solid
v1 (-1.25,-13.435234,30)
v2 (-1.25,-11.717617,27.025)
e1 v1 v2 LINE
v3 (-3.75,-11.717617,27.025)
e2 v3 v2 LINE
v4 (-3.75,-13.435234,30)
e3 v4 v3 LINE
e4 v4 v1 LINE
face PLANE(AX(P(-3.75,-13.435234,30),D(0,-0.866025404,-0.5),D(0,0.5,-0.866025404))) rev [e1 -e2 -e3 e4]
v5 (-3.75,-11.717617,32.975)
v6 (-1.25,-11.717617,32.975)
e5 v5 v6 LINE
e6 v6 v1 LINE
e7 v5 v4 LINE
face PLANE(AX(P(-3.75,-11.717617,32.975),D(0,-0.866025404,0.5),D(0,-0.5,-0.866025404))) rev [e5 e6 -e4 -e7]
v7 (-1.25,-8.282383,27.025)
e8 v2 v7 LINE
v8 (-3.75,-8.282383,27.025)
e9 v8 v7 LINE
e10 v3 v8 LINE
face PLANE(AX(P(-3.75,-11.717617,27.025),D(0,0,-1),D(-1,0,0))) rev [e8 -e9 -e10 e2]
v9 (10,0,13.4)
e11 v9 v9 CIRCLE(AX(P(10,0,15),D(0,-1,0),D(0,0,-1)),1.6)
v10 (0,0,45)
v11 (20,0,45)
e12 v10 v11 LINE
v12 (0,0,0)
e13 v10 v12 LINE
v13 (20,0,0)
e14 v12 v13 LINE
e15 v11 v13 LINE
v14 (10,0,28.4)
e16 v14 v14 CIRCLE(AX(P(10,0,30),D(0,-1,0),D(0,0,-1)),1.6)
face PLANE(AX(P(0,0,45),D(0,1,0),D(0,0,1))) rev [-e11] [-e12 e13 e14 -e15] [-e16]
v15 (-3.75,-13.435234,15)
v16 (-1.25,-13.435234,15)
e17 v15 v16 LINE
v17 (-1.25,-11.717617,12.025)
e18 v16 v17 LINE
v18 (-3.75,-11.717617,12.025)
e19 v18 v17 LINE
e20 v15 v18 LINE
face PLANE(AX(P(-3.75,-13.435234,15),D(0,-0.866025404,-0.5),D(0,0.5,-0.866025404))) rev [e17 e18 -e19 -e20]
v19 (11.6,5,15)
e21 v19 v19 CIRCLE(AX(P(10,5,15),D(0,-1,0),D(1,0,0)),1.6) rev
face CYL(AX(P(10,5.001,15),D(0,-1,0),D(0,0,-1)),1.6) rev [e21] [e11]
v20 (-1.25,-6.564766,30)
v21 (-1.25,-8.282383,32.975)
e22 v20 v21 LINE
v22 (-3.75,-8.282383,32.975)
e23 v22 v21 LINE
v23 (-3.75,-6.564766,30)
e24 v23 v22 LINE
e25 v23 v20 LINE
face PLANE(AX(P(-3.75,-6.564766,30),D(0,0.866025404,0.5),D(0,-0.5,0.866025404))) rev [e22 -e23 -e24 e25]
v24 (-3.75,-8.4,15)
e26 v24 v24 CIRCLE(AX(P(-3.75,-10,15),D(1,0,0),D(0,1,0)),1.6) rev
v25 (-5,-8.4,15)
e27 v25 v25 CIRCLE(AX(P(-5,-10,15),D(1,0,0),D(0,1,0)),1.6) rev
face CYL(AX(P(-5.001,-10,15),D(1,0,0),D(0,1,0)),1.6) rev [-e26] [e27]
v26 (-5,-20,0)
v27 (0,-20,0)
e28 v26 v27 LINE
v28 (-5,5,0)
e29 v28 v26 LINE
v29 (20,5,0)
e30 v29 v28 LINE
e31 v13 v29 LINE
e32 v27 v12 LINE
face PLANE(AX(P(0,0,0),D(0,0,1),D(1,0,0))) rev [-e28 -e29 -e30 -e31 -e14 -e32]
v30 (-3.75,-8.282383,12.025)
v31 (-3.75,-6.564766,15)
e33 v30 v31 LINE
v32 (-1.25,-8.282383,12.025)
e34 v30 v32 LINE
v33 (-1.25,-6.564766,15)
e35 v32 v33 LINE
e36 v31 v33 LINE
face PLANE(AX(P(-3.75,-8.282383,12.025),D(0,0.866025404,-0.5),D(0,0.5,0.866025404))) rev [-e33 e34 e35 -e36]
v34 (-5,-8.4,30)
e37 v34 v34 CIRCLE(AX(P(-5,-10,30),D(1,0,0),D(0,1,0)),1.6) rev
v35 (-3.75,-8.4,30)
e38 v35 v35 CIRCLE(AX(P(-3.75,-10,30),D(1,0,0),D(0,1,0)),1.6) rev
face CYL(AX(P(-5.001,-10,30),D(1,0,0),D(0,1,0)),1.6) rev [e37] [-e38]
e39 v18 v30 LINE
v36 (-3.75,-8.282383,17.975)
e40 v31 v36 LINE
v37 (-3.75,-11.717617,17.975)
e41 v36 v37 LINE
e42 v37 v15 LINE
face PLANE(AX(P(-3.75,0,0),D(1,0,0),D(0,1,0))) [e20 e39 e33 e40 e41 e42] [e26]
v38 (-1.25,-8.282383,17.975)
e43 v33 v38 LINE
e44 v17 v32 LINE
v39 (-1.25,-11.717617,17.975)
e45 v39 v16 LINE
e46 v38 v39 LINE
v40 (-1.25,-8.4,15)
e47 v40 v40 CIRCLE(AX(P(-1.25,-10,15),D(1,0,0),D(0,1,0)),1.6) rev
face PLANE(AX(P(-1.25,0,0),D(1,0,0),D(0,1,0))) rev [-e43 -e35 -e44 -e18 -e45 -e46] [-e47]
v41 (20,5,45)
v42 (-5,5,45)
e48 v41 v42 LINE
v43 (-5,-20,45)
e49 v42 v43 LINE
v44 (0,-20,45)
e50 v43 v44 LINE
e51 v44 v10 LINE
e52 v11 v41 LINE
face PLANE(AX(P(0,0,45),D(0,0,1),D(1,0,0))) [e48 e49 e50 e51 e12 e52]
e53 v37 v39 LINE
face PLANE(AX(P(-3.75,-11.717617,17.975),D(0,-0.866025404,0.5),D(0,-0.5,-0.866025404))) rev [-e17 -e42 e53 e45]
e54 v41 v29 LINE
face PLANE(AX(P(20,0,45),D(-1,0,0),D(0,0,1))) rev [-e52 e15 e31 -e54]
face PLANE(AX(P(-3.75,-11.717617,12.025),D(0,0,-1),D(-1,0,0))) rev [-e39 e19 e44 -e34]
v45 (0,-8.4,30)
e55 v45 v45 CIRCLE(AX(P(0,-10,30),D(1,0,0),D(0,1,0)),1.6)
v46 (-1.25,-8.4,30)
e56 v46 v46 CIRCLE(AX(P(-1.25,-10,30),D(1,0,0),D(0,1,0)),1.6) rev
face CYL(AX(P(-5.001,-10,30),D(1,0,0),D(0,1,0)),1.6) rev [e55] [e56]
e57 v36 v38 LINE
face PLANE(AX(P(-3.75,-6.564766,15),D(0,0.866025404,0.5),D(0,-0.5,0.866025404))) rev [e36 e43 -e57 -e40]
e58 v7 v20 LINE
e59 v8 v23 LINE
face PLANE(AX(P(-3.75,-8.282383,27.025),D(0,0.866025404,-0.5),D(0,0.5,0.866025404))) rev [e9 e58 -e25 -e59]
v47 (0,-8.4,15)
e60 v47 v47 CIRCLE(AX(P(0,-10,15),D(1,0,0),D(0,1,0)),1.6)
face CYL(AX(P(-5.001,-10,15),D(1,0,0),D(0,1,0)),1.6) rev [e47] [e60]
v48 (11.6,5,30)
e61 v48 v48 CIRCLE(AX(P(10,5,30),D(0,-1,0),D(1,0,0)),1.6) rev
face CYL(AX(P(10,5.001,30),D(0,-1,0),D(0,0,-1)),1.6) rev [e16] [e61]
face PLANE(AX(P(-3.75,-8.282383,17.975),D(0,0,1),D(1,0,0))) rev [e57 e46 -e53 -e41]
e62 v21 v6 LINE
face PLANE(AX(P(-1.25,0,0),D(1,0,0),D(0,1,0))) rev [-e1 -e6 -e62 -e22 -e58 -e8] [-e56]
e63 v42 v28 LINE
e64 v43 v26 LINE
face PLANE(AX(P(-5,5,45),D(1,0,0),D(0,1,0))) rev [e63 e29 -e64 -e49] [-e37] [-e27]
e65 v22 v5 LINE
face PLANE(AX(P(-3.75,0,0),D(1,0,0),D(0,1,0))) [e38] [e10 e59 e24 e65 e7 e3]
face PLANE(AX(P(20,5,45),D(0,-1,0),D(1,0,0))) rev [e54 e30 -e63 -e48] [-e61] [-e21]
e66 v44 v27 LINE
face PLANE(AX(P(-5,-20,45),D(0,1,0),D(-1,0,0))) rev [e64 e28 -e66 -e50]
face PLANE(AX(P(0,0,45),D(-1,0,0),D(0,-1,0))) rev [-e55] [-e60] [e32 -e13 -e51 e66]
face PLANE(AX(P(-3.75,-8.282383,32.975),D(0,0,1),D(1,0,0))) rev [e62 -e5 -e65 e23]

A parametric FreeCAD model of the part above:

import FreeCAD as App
import Part
import Sketcher

V = App.Vector
Q = App.Units.Quantity


def add_polygon(sketch, points):
    """Adds a closed chain of lines whose ends are joined by coincident constraints."""
    first, n = sketch.GeometryCount, len(points)
    for a, b in zip(points, points[1:] + points[:1]):
        sketch.addGeometry(Part.LineSegment(App.Vector(*a, 0), App.Vector(*b, 0)), False)
    for i in range(n):
        sketch.addConstraint(Sketcher.Constraint("Coincident", first + i, 2, first + (i + 1) % n, 1))

doc = App.newDocument("Part")
params = doc.addObject("Spreadsheet::Sheet", "Params")
for row, (alias, value) in enumerate([
    ("sketch1_width", "20 mm"),
    ("sketch1_width2", "25 mm"),
    ("pad1_length", "45 mm"),
    ("sketch2_diameter", "3.2 mm"),
    ("sketch3_diameter", "3.2 mm"),
    ("sketch4_diameter", "3.2 mm"),
    ("sketch5_diameter", "3.2 mm"),
    ("pocket5_length", "2.5 mm"),
], start=1):
    params.set(f"A{row}", alias)
    params.set(f"B{row}", "=" + value)
    params.setAlias(f"B{row}", alias)

body = doc.addObject("PartDesign::Body", "Body")

sketch1 = body.newObject("Sketcher::SketchObject", "Sketch")
sketch1.AttachmentSupport = (doc.getObject("XY_Plane"), [""])
sketch1.MapMode = "FlatFace"
add_polygon(sketch1, [(0, -20), (0, 0), (20, 0), (20, 5), (-5, 5), (-5, -20)])
sketch1.addConstraint(Sketcher.Constraint("Vertical", 0))
sketch1.addConstraint(Sketcher.Constraint("Horizontal", 1))
sketch1.addConstraint(Sketcher.Constraint("Vertical", 2))
sketch1.addConstraint(Sketcher.Constraint("Horizontal", 3))
sketch1.addConstraint(Sketcher.Constraint("Vertical", 4))
sketch1.addConstraint(Sketcher.Constraint("Horizontal", 5))
sketch1.addConstraint(Sketcher.Constraint("Coincident", 0, 2, -1, 1))
sketch1.addConstraint(Sketcher.Constraint("Equal", 1, 0))
sketch1.addConstraint(Sketcher.Constraint("Equal", 5, 2))
sketch1.addConstraint(Sketcher.Constraint("DistanceX", 1, 1, 1, 2, 20.0))
sketch1.addConstraint(Sketcher.Constraint("DistanceX", 3, 2, 3, 1, 25.0))
sketch1.setExpression("Constraints[15]", "Params.sketch1_width")
sketch1.setExpression("Constraints[16]", "Params.sketch1_width2")
pad1 = body.newObject("PartDesign::Pad", "Pad")
pad1.Profile = sketch1
pad1.setExpression("Length", "Params.pad1_length")

sketch2 = body.newObject("Sketcher::SketchObject", "Sketch001")
sketch2.AttachmentSupport = (doc.getObject("YZ_Plane"), [""])
sketch2.MapMode = "FlatFace"
sketch2.addGeometry(Part.Circle(V(-10, 30, 0), V(0, 0, 1), 1.6), False)
sketch2.addConstraint(Sketcher.Constraint("Diameter", 0, 3.2))
sketch2.addConstraint(Sketcher.Constraint("DistanceX", 0, 3, -1, 1, 10.0))
sketch2.addConstraint(Sketcher.Constraint("DistanceY", -1, 1, 0, 3, 30.0))
sketch2.setExpression("Constraints[0]", "Params.sketch2_diameter")
pocket1 = body.newObject("PartDesign::Pocket", "Pocket")
pocket1.Profile = sketch2
pocket1.Type = "UpToFirst"

sketch3 = body.newObject("Sketcher::SketchObject", "Sketch002")
sketch3.AttachmentSupport = (doc.getObject("YZ_Plane"), [""])
sketch3.MapMode = "FlatFace"
sketch3.addGeometry(Part.Circle(V(-10, 15, 0), V(0, 0, 1), 1.6), False)
sketch3.addConstraint(Sketcher.Constraint("Diameter", 0, 3.2))
sketch3.addConstraint(Sketcher.Constraint("DistanceX", 0, 3, -1, 1, 10.0))
sketch3.addConstraint(Sketcher.Constraint("DistanceY", -1, 1, 0, 3, 15.0))
sketch3.setExpression("Constraints[0]", "Params.sketch3_diameter")
pocket2 = body.newObject("PartDesign::Pocket", "Pocket001")
pocket2.Profile = sketch3
pocket2.Type = "UpToFirst"

sketch4 = body.newObject("Sketcher::SketchObject", "Sketch003")
sketch4.AttachmentSupport = (doc.getObject("XZ_Plane"), [""])
sketch4.MapMode = "FlatFace"
sketch4.addGeometry(Part.Circle(V(10, 30, 0), V(0, 0, 1), 1.6), False)
sketch4.addConstraint(Sketcher.Constraint("Diameter", 0, 3.2))
sketch4.addConstraint(Sketcher.Constraint("DistanceX", -1, 1, 0, 3, 10.0))
sketch4.addConstraint(Sketcher.Constraint("DistanceY", -1, 1, 0, 3, 30.0))
sketch4.setExpression("Constraints[0]", "Params.sketch4_diameter")
pocket3 = body.newObject("PartDesign::Pocket", "Pocket002")
pocket3.Profile = sketch4
pocket3.Type = "UpToFirst"

sketch5 = body.newObject("Sketcher::SketchObject", "Sketch004")
sketch5.AttachmentSupport = (doc.getObject("XZ_Plane"), [""])
sketch5.MapMode = "FlatFace"
sketch5.addGeometry(Part.Circle(V(10, 15, 0), V(0, 0, 1), 1.6), False)
sketch5.addConstraint(Sketcher.Constraint("Diameter", 0, 3.2))
sketch5.addConstraint(Sketcher.Constraint("DistanceX", -1, 1, 0, 3, 10.0))
sketch5.addConstraint(Sketcher.Constraint("DistanceY", -1, 1, 0, 3, 15.0))
sketch5.setExpression("Constraints[0]", "Params.sketch5_diameter")
pocket4 = body.newObject("PartDesign::Pocket", "Pocket003")
pocket4.Profile = sketch5
pocket4.Type = "UpToFirst"

sketch6 = body.newObject("Sketcher::SketchObject", "Sketch005")
sketch6.AttachmentSupport = (doc.getObject("YZ_Plane"), [""])
sketch6.MapMode = "FlatFace"
sketch6.AttachmentOffset = App.Placement(V(0, 0, -1.25), App.Rotation())
add_polygon(sketch6, [(-6.6, 30), (-8.3, 33), (-11.7, 33), (-13.4, 30), (-11.7, 27), (-8.3, 27)])
add_polygon(sketch6, [(-6.6, 15), (-8.3, 18), (-11.7, 18), (-13.4, 15), (-11.7, 12), (-8.3, 12)])
sketch6.addConstraint(Sketcher.Constraint("Horizontal", 1))
sketch6.addConstraint(Sketcher.Constraint("Horizontal", 4))
sketch6.addConstraint(Sketcher.Constraint("Horizontal", 7))
sketch6.addConstraint(Sketcher.Constraint("Horizontal", 10))
sketch6.addConstraint(Sketcher.Constraint("Parallel", 0, 3))
sketch6.addConstraint(Sketcher.Constraint("Parallel", 2, 5))
sketch6.addConstraint(Sketcher.Constraint("Parallel", 3, 6))
sketch6.addConstraint(Sketcher.Constraint("Parallel", 5, 8))
sketch6.addConstraint(Sketcher.Constraint("Parallel", 6, 9))
sketch6.addConstraint(Sketcher.Constraint("Parallel", 8, 11))
sketch6.addConstraint(Sketcher.Constraint("Horizontal", 2, 2, 5, 2))
sketch6.addConstraint(Sketcher.Constraint("Horizontal", 8, 2, 11, 2))
sketch6.addConstraint(Sketcher.Constraint("Vertical", 1, 2, 3, 2))
sketch6.addConstraint(Sketcher.Constraint("Vertical", 0, 2, 4, 2))
sketch6.addConstraint(Sketcher.Constraint("Vertical", 4, 2, 6, 2))
sketch6.addConstraint(Sketcher.Constraint("Vertical", 3, 2, 7, 2))
sketch6.addConstraint(Sketcher.Constraint("Vertical", 2, 2, 8, 2))
sketch6.addConstraint(Sketcher.Constraint("Vertical", 7, 2, 9, 2))
sketch6.addConstraint(Sketcher.Constraint("Angle", 0, Q("120 deg")))
sketch6.addConstraint(Sketcher.Constraint("DistanceY", -1, 1, 2, 2, 30.0))
sketch6.addConstraint(Sketcher.Constraint("DistanceY", -1, 1, 8, 2, 15.0))
sketch6.addConstraint(Sketcher.Constraint("DistanceY", 3, 2, 1, 2, 5.95))
sketch6.addConstraint(Sketcher.Constraint("DistanceX", 1, 2, 1, 1, 3.435234))
sketch6.addConstraint(Sketcher.Constraint("DistanceX", 0, 2, -1, 1, 8.282383))
pocket5 = body.newObject("PartDesign::Pocket", "Pocket004")
pocket5.Profile = sketch6
pocket5.setExpression("Length", "Params.pocket5_length")

doc.recompute()
